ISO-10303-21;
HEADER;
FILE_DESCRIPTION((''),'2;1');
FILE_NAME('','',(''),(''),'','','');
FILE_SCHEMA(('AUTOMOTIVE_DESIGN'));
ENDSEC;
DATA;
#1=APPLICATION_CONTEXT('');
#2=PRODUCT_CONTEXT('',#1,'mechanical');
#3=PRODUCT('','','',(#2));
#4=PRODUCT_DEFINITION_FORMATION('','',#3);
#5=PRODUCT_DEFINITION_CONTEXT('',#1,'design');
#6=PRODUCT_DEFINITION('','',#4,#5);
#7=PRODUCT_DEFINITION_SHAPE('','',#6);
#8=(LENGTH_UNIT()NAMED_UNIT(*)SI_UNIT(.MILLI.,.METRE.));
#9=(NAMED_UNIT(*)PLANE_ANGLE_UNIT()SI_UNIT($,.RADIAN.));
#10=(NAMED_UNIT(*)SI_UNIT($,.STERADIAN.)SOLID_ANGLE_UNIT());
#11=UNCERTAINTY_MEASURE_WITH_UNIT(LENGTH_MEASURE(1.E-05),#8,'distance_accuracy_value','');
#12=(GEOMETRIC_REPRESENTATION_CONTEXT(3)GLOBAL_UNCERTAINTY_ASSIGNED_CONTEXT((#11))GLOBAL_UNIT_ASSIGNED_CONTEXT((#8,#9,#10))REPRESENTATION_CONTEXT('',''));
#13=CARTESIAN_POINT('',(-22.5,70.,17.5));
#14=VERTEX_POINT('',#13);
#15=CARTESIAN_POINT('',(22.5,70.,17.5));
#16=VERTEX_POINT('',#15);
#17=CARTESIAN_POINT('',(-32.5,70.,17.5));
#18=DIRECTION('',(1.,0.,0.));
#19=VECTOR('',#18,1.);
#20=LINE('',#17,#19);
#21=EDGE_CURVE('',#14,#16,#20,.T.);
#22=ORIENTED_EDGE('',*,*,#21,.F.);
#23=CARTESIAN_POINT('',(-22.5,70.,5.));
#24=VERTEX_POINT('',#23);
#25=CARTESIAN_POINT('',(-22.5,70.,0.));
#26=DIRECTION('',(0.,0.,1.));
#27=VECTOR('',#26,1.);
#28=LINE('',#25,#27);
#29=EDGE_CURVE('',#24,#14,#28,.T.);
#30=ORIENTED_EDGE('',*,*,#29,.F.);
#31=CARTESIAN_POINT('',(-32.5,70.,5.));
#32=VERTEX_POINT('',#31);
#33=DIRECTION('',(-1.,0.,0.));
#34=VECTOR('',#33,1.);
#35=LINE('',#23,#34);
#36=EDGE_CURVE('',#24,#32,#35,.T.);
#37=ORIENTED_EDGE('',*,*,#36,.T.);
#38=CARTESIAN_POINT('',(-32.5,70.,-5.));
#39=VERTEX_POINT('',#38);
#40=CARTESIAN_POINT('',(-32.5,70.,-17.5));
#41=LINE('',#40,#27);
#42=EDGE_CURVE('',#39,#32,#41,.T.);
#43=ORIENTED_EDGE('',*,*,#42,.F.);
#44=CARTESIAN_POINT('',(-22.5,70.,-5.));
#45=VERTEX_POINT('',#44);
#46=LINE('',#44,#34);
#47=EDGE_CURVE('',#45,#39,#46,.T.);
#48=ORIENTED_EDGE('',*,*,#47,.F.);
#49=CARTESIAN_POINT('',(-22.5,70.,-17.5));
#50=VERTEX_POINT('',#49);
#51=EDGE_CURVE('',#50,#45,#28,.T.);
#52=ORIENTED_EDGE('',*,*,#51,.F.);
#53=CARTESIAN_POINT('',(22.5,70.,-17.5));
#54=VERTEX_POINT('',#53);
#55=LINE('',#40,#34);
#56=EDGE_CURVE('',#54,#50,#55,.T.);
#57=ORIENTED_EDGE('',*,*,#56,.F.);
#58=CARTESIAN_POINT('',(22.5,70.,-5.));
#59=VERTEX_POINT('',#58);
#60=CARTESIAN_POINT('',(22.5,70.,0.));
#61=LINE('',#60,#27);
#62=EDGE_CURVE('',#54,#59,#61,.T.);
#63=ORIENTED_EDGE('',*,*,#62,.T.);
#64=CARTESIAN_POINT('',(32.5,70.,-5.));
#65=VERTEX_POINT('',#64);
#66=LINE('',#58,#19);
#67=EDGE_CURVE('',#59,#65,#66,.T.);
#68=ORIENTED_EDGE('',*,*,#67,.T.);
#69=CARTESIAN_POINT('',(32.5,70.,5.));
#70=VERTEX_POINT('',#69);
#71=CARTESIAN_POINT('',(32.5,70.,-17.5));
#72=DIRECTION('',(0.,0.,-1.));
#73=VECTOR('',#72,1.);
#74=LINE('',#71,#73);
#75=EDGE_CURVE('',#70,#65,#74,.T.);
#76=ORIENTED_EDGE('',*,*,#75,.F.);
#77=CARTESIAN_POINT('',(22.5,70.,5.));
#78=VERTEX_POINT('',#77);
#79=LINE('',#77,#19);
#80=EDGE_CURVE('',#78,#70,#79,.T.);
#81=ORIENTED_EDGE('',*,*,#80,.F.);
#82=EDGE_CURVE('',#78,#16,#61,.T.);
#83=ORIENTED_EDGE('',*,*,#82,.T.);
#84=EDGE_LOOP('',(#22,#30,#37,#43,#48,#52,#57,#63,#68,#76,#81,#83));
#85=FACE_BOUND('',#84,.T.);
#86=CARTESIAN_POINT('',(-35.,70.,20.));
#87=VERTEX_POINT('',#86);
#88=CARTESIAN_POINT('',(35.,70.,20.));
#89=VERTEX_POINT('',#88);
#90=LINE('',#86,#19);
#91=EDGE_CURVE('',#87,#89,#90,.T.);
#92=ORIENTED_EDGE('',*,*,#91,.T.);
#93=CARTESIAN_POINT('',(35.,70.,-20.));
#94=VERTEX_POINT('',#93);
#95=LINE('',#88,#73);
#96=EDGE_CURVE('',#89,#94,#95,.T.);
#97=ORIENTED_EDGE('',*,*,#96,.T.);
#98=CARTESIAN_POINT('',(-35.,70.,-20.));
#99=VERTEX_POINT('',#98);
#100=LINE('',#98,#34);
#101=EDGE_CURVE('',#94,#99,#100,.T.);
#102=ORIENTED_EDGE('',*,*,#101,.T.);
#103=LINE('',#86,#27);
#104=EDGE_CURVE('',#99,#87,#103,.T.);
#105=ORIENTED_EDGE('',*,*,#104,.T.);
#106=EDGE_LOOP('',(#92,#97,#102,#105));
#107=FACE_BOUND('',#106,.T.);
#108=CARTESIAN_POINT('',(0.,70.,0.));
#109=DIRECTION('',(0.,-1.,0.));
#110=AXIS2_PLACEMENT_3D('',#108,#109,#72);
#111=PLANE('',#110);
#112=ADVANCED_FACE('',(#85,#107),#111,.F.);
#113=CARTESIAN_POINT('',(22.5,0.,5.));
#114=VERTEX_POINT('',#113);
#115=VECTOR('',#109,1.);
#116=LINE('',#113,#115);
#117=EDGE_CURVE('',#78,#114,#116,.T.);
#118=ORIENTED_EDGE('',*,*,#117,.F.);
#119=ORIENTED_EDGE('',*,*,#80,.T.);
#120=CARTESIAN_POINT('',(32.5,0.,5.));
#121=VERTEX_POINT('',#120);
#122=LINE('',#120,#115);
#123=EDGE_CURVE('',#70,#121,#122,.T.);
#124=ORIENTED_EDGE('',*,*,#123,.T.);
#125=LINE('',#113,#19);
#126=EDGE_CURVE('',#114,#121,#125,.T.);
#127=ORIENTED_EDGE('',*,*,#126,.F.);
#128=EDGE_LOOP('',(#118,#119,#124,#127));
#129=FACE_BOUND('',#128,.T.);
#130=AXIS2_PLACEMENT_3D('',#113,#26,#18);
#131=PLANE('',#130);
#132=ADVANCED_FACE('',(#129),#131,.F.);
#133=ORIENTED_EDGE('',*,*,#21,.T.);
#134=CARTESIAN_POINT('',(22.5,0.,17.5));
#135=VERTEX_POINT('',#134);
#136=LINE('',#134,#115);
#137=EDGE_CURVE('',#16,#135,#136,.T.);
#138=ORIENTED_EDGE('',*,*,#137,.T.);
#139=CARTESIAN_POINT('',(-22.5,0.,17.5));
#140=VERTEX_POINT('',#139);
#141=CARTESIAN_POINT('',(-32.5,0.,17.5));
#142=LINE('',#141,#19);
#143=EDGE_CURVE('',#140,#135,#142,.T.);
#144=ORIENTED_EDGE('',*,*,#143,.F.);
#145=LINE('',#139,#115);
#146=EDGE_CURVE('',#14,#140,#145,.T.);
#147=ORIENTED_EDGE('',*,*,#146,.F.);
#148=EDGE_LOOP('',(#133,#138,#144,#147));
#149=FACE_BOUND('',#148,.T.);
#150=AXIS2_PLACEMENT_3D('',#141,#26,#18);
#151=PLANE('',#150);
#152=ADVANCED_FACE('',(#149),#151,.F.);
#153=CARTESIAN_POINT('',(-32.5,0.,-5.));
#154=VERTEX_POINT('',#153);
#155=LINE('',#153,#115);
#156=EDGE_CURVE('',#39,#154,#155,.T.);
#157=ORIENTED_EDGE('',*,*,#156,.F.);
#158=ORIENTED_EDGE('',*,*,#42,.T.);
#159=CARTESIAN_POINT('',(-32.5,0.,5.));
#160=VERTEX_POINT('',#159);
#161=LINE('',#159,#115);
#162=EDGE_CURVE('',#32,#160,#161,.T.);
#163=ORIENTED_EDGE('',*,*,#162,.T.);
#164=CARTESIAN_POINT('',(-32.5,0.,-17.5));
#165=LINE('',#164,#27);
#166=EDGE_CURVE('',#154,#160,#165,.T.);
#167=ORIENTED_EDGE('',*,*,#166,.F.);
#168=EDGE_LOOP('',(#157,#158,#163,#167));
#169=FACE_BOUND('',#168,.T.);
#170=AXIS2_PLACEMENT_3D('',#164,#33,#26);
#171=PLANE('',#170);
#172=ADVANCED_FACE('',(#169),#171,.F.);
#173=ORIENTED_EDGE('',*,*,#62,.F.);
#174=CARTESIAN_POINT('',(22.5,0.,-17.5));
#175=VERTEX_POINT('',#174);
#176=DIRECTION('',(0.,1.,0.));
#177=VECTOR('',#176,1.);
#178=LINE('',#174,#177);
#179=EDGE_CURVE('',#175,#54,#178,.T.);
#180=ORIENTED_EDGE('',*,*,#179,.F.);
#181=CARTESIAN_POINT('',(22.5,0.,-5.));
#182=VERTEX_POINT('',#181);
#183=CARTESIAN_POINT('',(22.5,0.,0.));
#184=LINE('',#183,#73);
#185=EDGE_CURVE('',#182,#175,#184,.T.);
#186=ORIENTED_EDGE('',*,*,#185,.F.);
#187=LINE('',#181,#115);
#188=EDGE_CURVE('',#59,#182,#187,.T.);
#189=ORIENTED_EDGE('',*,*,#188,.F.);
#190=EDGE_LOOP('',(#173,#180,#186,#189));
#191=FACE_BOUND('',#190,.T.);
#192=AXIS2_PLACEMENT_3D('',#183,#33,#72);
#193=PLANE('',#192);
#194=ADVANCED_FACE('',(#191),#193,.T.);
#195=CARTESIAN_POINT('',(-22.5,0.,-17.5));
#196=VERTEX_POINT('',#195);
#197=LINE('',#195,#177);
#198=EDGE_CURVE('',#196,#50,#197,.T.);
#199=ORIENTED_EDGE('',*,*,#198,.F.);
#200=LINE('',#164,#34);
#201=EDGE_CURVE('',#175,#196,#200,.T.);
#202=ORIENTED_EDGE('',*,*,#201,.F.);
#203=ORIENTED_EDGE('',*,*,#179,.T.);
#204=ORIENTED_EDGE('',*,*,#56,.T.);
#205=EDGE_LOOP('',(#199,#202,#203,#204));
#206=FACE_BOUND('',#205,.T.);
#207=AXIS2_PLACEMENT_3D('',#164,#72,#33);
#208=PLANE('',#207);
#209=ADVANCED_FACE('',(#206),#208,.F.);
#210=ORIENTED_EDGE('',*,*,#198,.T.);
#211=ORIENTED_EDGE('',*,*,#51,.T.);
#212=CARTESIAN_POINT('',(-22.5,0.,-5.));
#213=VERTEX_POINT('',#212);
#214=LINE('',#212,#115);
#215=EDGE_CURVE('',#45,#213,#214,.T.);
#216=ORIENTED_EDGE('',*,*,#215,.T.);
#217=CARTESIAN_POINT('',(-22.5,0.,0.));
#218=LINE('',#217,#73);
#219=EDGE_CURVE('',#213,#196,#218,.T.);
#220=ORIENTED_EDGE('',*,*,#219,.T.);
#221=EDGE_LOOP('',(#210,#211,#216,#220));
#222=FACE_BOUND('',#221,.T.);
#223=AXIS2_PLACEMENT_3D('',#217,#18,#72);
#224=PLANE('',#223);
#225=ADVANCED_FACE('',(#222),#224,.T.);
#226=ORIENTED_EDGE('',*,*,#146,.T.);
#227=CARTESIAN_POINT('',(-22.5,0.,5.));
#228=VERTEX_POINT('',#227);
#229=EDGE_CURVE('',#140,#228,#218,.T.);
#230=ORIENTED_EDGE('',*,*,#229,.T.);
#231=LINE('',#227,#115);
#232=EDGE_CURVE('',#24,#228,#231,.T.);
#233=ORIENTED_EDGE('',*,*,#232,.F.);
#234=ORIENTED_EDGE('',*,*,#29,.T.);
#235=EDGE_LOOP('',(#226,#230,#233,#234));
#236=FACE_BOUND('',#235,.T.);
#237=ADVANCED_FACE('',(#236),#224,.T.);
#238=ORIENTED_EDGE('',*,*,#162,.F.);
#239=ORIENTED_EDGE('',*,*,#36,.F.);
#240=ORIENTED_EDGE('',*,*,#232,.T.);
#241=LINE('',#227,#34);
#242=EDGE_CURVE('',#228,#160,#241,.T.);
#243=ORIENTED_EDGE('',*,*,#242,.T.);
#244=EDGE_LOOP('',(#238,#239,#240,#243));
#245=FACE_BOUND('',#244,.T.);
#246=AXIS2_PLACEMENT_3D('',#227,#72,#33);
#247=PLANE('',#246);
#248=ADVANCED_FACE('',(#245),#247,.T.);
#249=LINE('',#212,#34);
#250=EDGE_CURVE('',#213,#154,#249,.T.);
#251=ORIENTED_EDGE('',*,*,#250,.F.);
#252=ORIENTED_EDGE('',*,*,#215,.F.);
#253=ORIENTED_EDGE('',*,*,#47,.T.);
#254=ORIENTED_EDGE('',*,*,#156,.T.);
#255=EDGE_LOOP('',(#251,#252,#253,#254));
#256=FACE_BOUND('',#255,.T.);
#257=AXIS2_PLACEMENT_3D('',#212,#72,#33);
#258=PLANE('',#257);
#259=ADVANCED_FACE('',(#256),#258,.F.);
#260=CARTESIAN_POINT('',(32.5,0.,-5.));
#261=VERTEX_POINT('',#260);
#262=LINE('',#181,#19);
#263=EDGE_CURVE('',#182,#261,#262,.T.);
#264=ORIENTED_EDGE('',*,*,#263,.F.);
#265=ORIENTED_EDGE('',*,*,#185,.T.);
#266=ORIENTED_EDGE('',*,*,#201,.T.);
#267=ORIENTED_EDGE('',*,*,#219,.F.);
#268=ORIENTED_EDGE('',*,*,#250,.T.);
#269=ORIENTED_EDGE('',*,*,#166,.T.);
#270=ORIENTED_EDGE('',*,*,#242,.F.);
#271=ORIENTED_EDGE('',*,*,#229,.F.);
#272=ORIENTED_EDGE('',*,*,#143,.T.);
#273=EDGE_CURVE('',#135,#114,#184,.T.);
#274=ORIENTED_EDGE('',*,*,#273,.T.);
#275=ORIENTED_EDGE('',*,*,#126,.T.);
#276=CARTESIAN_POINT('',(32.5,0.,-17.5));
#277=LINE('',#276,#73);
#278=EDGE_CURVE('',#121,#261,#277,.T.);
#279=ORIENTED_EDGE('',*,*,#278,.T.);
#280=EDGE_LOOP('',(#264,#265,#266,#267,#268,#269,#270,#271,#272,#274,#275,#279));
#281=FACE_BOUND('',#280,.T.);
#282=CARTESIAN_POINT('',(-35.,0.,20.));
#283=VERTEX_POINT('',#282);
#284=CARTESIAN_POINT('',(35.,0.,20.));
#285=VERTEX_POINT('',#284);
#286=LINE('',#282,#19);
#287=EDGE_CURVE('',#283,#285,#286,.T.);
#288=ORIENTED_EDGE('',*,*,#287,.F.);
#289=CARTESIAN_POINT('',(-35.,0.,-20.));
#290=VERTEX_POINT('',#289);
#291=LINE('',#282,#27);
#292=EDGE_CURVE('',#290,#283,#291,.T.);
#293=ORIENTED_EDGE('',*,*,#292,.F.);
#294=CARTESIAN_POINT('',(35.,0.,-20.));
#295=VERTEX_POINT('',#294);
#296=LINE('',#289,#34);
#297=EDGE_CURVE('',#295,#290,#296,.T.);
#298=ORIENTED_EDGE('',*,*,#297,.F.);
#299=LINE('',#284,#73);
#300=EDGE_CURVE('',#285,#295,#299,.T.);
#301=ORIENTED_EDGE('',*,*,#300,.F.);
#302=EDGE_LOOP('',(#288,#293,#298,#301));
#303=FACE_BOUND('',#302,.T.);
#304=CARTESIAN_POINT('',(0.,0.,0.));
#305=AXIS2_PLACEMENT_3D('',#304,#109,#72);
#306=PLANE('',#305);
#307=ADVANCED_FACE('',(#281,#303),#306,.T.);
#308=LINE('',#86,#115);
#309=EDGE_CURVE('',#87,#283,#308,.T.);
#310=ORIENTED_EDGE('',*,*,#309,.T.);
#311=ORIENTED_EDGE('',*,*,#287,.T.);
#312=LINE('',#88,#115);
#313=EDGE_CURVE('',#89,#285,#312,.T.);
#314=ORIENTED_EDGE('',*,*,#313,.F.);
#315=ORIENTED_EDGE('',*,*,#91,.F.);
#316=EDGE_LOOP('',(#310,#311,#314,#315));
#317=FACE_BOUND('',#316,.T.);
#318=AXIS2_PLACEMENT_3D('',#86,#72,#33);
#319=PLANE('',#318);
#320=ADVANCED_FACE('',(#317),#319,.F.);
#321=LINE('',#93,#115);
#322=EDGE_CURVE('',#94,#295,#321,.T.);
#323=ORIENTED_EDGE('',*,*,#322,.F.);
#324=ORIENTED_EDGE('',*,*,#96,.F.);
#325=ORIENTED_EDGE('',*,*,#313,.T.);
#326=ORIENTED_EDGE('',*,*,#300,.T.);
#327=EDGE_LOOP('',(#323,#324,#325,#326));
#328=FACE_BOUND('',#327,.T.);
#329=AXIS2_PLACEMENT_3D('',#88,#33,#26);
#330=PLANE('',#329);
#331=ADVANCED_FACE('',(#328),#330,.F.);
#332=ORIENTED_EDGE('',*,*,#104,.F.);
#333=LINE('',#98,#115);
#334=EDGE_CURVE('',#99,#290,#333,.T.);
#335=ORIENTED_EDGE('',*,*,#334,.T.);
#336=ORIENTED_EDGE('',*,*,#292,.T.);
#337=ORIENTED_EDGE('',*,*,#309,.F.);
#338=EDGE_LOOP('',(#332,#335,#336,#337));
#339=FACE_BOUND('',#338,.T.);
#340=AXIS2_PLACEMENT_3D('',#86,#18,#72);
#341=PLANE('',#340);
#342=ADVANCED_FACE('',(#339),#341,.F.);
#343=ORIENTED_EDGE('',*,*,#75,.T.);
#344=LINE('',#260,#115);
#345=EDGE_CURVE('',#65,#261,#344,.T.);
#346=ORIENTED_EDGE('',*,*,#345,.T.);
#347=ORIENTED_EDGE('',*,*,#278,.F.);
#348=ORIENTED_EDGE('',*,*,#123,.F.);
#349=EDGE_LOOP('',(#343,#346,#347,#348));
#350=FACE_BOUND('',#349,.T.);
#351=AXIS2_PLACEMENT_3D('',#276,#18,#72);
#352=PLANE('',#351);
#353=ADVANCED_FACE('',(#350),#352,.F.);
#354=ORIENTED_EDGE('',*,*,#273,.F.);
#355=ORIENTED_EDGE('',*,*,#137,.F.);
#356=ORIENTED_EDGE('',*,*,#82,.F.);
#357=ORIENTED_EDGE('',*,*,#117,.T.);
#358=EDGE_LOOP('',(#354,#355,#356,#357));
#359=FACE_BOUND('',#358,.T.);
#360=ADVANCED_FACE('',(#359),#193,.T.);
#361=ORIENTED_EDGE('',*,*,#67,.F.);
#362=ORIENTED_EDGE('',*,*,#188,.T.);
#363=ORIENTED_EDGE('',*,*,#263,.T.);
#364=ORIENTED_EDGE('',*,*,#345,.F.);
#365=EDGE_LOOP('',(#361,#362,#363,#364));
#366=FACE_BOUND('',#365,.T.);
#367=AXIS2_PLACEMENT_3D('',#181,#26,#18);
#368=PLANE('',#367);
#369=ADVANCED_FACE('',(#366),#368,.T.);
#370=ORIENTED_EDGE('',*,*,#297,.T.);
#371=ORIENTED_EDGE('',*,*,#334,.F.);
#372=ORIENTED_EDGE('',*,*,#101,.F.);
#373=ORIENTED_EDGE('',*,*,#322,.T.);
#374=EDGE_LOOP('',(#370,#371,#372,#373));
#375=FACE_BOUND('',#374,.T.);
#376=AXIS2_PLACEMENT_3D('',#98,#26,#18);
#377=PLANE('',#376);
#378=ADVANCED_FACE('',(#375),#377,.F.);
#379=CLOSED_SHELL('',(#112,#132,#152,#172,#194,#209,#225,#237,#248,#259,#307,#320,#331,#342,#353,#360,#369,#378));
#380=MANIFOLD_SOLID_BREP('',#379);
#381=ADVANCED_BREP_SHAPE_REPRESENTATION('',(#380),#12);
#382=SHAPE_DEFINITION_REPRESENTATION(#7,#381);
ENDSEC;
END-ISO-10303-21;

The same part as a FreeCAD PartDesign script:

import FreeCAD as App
import Part
import Sketcher

V = App.Vector

doc = App.newDocument("Part")
body = doc.addObject("PartDesign::Body", "Body")

sketch1 = body.newObject("Sketcher::SketchObject", "Sketch")
sketch1.AttachmentSupport = (doc.getObject("XZ_Plane"), [""])
sketch1.MapMode = "FlatFace"
sketch1.addGeometry(Part.LineSegment(V(-35, -20, 0), V(-35, 20, 0)), False)
sketch1.addGeometry(Part.LineSegment(V(-35, 20, 0), V(35, 20, 0)), False)
sketch1.addGeometry(Part.LineSegment(V(35, 20, 0), V(35, -20, 0)), False)
sketch1.addGeometry(Part.LineSegment(V(35, -20, 0), V(-35, -20, 0)), False)
sketch1.addConstraint(Sketcher.Constraint("Coincident", 0, 2, 1, 1))
sketch1.addConstraint(Sketcher.Constraint("Coincident", 1, 2, 2, 1))
sketch1.addConstraint(Sketcher.Constraint("Coincident", 2, 2, 3, 1))
sketch1.addConstraint(Sketcher.Constraint("Coincident", 3, 2, 0, 1))
sketch1.addConstraint(Sketcher.Constraint("Vertical", 0))
sketch1.addConstraint(Sketcher.Constraint("Horizontal", 1))
sketch1.addConstraint(Sketcher.Constraint("Vertical", 2))
sketch1.addConstraint(Sketcher.Constraint("Horizontal", 3))
sketch1.addConstraint(Sketcher.Constraint("Symmetric", 0, 2, 2, 2, -1, 1))
sketch1.addConstraint(Sketcher.Constraint("DistanceX", 1, 1, 1, 2, 70.0))
sketch1.addConstraint(Sketcher.Constraint("DistanceY", 0, 1, 0, 2, 40.0))
pad1 = body.newObject("PartDesign::Pad", "Pad")
pad1.Profile = sketch1
pad1.Length = 70
pad1.Reversed = True

sketch2 = body.newObject("Sketcher::SketchObject", "Sketch001")
sketch2.AttachmentSupport = (doc.getObject("XZ_Plane"), [""])
sketch2.MapMode = "FlatFace"
sketch2.AttachmentOffset = App.Placement(V(0, 0, -70), App.Rotation())
sketch2.addGeometry(Part.LineSegment(V(-32, -18, 0), V(-32, 18, 0)), False)
sketch2.addGeometry(Part.LineSegment(V(-32, 18, 0), V(32, 18, 0)), False)
sketch2.addGeometry(Part.LineSegment(V(32, 18, 0), V(32, -18, 0)), False)
sketch2.addGeometry(Part.LineSegment(V(32, -18, 0), V(-32, -18, 0)), False)
sketch2.addConstraint(Sketcher.Constraint("Coincident", 0, 2, 1, 1))
sketch2.addConstraint(Sketcher.Constraint("Coincident", 1, 2, 2, 1))
sketch2.addConstraint(Sketcher.Constraint("Coincident", 2, 2, 3, 1))
sketch2.addConstraint(Sketcher.Constraint("Coincident", 3, 2, 0, 1))
sketch2.addConstraint(Sketcher.Constraint("Vertical", 0))
sketch2.addConstraint(Sketcher.Constraint("Horizontal", 1))
sketch2.addConstraint(Sketcher.Constraint("Vertical", 2))
sketch2.addConstraint(Sketcher.Constraint("Horizontal", 3))
sketch2.addConstraint(Sketcher.Constraint("Symmetric", 0, 2, 2, 2, -1, 1))
sketch2.addConstraint(Sketcher.Constraint("DistanceX", 1, 1, 1, 2, 65.0))
sketch2.addConstraint(Sketcher.Constraint("DistanceY", 0, 1, 0, 2, 35.0))
pocket1 = body.newObject("PartDesign::Pocket", "Pocket")
pocket1.Profile = sketch2
pocket1.Type = "ThroughAll"
pocket1.Reversed = True

sketch3 = body.newObject("Sketcher::SketchObject", "Sketch002")
sketch3.AttachmentSupport = (doc.getObject("YZ_Plane"), [""])
sketch3.MapMode = "FlatFace"
sketch3.AttachmentOffset = App.Placement(V(0, 0, -32.5), App.Rotation())
sketch3.addGeometry(Part.LineSegment(V(70, 18, 0), V(0, 18, 0)), False)
sketch3.addGeometry(Part.LineSegment(V(0, 18, 0), V(0, 5, 0)), False)
sketch3.addGeometry(Part.LineSegment(V(0, 5, 0), V(70, 5, 0)), False)
sketch3.addGeometry(Part.LineSegment(V(70, 5, 0), V(70, 18, 0)), False)
sketch3.addGeometry(Part.LineSegment(V(70, -5, 0), V(0, -5, 0)), False)
sketch3.addGeometry(Part.LineSegment(V(0, -5, 0), V(0, -18, 0)), False)
sketch3.addGeometry(Part.LineSegment(V(0, -18, 0), V(70, -18, 0)), False)
sketch3.addGeometry(Part.LineSegment(V(70, -18, 0), V(70, -5, 0)), False)
sketch3.addConstraint(Sketcher.Constraint("Coincident", 0, 2, 1, 1))
sketch3.addConstraint(Sketcher.Constraint("Coincident", 1, 2, 2, 1))
sketch3.addConstraint(Sketcher.Constraint("Coincident", 2, 2, 3, 1))
sketch3.addConstraint(Sketcher.Constraint("Coincident", 3, 2, 0, 1))
sketch3.addConstraint(Sketcher.Constraint("Coincident", 4, 2, 5, 1))
sketch3.addConstraint(Sketcher.Constraint("Coincident", 5, 2, 6, 1))
sketch3.addConstraint(Sketcher.Constraint("Coincident", 6, 2, 7, 1))
sketch3.addConstraint(Sketcher.Constraint("Coincident", 7, 2, 4, 1))
sketch3.addConstraint(Sketcher.Constraint("Horizontal", 0))
sketch3.addConstraint(Sketcher.Constraint("Vertical", 1))
sketch3.addConstraint(Sketcher.Constraint("Horizontal", 2))
sketch3.addConstraint(Sketcher.Constraint("Vertical", 3))
sketch3.addConstraint(Sketcher.Constraint("Horizontal", 4))
sketch3.addConstraint(Sketcher.Constraint("Vertical", 5))
sketch3.addConstraint(Sketcher.Constraint("Horizontal", 6))
sketch3.addConstraint(Sketcher.Constraint("Vertical", 7))
sketch3.addConstraint(Sketcher.Constraint("Symmetric", 1, 2, 4, 2, -1, 1))
sketch3.addConstraint(Sketcher.Constraint("Symmetric", 0, 2, 5, 2, -1))
sketch3.addConstraint(Sketcher.Constraint("Vertical", 3, 2, 6, 2))
sketch3.addConstraint(Sketcher.Constraint("DistanceX", 0, 2, 0, 1, 70.0))
sketch3.addConstraint(Sketcher.Constraint("DistanceY", 1, 2, 1, 1, 12.5))
sketch3.addConstraint(Sketcher.Constraint("DistanceY", -1, 1, 1, 2, 5.0))
pad2 = body.newObject("PartDesign::Pad", "Pad001")
pad2.Profile = sketch3
pad2.Length = 10
doc.recompute()

mirrored = body.newObject("PartDesign::Mirrored", "Mirrored")
mirrored.Originals = [pad2]
mirrored.MirrorPlane = (doc.getObject("YZ_Plane"), [""])
body.Tip = mirrored

doc.recompute()
